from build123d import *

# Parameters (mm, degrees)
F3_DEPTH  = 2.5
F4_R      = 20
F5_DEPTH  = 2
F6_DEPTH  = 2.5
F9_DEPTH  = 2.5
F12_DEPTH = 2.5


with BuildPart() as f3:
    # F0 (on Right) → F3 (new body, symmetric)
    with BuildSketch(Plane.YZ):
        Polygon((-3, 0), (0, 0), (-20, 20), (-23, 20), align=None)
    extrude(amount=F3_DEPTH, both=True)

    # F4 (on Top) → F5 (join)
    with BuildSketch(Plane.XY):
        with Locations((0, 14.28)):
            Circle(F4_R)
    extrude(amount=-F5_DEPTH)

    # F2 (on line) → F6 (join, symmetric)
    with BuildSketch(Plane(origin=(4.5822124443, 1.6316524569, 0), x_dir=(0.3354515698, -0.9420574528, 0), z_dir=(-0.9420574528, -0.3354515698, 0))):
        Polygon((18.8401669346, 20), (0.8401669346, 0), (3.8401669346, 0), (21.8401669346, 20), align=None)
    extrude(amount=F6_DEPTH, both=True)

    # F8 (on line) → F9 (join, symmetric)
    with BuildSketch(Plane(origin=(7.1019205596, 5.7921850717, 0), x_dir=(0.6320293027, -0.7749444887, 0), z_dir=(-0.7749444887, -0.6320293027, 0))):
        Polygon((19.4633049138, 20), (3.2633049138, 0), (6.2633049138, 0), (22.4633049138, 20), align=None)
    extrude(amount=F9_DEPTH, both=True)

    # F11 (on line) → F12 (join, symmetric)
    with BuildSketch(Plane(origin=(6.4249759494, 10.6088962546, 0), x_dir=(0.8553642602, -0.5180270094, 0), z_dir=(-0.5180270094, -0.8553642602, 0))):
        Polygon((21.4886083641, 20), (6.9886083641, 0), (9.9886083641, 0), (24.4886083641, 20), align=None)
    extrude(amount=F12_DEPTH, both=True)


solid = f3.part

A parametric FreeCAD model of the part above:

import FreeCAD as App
import Part
import Sketcher
Q = App.Units.Quantity


def add_polygon(sketch, points):
    """Adds a closed chain of lines whose ends are joined by coincident constraints."""
    first, n = sketch.GeometryCount, len(points)
    for a, b in zip(points, points[1:] + points[:1]):
        sketch.addGeometry(Part.LineSegment(App.Vector(*a, 0), App.Vector(*b, 0)), False)
    for i in range(n):
        sketch.addConstraint(Sketcher.Constraint("Coincident", first + i, 2, first + (i + 1) % n, 1))

doc = App.newDocument("Part")
body = doc.addObject("PartDesign::Body", "Body")

# Sketch on YZ plane
sketch1 = body.newObject("Sketcher::SketchObject", "Sketch")
sketch1.AttachmentSupport = (doc.getObject("YZ_Plane"), [""])
sketch1.MapMode = "FlatFace"
add_polygon(sketch1, [(-3, 0), (0, 0), (-20, 20), (-23, 20)])  # lines 0-3
sketch1.addConstraint([
    Sketcher.Constraint("Horizontal", 0),
    Sketcher.Constraint("Horizontal", 2),
    Sketcher.Constraint("Coincident", 0, 2, -1, 1),
    Sketcher.Constraint("Parallel", 1, 3),
    Sketcher.Constraint("DistanceX", 0, 1, 0, 2, 3.0),
    Sketcher.Constraint("Angle", 1, Q("135 deg")),
    Sketcher.Constraint("DistanceX", 1, 2, -1, 1, 20.0),
])
pad1 = body.newObject("PartDesign::Pad", "Pad")
pad1.Profile = sketch1
pad1.Length = 5
pad1.Midplane = True

# Sketch on XY plane
sketch2 = body.newObject("Sketcher::SketchObject", "Sketch001")
sketch2.AttachmentSupport = (doc.getObject("XY_Plane"), [""])
sketch2.MapMode = "FlatFace"
sketch2.addGeometry(Part.Circle(App.Vector(0, 14.28, 0), App.Vector(0, 0, 1), 20), False)
sketch2.addConstraint([
    Sketcher.Constraint("PointOnObject", 0, 3, -2),
    Sketcher.Constraint("Diameter", 0, 40.0),
    Sketcher.Constraint("DistanceY", -1, 1, 0, 3, 14.28),
])
pad2 = body.newObject("PartDesign::Pad", "Pad001")
pad2.Profile = sketch2
pad2.Length = 2
pad2.Reversed = True

# Sketch on an angled plane
sketch3 = body.newObject("Sketcher::SketchObject", "Sketch002")
sketch3.Placement = App.Placement(App.Vector(4.582212, 1.631652, 0), App.Rotation(App.Vector(0.33545157, -0.942057453, 0), App.Vector(0, 0, 1.000000001), App.Vector(-0.942057453, -0.33545157, 0), "ZXY"))
add_polygon(sketch3, [(18.840167, 20), (0.840167, 0), (3.840167, 0), (21.840167, 20)])  # lines 0-3
sketch3.addConstraint([
    Sketcher.Constraint("Horizontal", 1),
    Sketcher.Constraint("Horizontal", 3),
    Sketcher.Constraint("PointOnObject", 0, 2, -1),
    Sketcher.Constraint("Parallel", 0, 2),
    Sketcher.Constraint("DistanceX", 1, 1, 1, 2, 3.0),
    Sketcher.Constraint("DistanceY", -1, 1, 2, 2, 20.0),
    Sketcher.Constraint("DistanceX", 1, 2, 2, 2, 18.0),
    Sketcher.Constraint("DistanceX", -1, 1, 0, 2, 0.840167),
])
pad3 = body.newObject("PartDesign::Pad", "Pad002")
pad3.Profile = sketch3
pad3.Length = 5
pad3.Midplane = True

# Sketch on an angled plane
sketch4 = body.newObject("Sketcher::SketchObject", "Sketch003")
sketch4.Placement = App.Placement(App.Vector(7.101921, 5.792185, 0), App.Rotation(App.Vector(0.632029303, -0.774944489, 0), App.Vector(0, 0, 1.000000001), App.Vector(-0.774944489, -0.632029303, 0), "ZXY"))
add_polygon(sketch4, [(19.463305, 20), (3.263305, 0), (6.263305, 0), (22.463305, 20)])  # lines 0-3
sketch4.addConstraint([
    Sketcher.Constraint("Horizontal", 1),
    Sketcher.Constraint("Horizontal", 3),
    Sketcher.Constraint("PointOnObject", 0, 2, -1),
    Sketcher.Constraint("Parallel", 0, 2),
    Sketcher.Constraint("DistanceX", 1, 1, 1, 2, 3.0),
    Sketcher.Constraint("DistanceY", -1, 1, 2, 2, 20.0),
    Sketcher.Constraint("DistanceX", 1, 2, 2, 2, 16.2),
    Sketcher.Constraint("DistanceX", -1, 1, 0, 2, 3.263305),
])
pad4 = body.newObject("PartDesign::Pad", "Pad003")
pad4.Profile = sketch4
pad4.Length = 5
pad4.Midplane = True

# Sketch on an angled plane
sketch5 = body.newObject("Sketcher::SketchObject", "Sketch004")
sketch5.Placement = App.Placement(App.Vector(6.424976, 10.608896, 0), App.Rotation(App.Vector(0.85536426, -0.518027009, 0), App.Vector(0, 0, 0.999999999), App.Vector(-0.518027009, -0.85536426, 0), "ZXY"))
add_polygon(sketch5, [(21.488608, 20), (6.988608, 0), (9.988608, 0), (24.488608, 20)])  # lines 0-3
sketch5.addConstraint([
    Sketcher.Constraint("Horizontal", 1),
    Sketcher.Constraint("Horizontal", 3),
    Sketcher.Constraint("PointOnObject", 0, 2, -1),
    Sketcher.Constraint("Parallel", 0, 2),
    Sketcher.Constraint("DistanceX", 1, 1, 1, 2, 3.0),
    Sketcher.Constraint("DistanceY", -1, 1, 2, 2, 20.0),
    Sketcher.Constraint("DistanceX", 1, 2, 2, 2, 14.5),
    Sketcher.Constraint("DistanceX", -1, 1, 0, 2, 6.988608),
])
pad5 = body.newObject("PartDesign::Pad", "Pad004")
pad5.Profile = sketch5
pad5.Length = 5
pad5.Midplane = True

doc.recompute()
